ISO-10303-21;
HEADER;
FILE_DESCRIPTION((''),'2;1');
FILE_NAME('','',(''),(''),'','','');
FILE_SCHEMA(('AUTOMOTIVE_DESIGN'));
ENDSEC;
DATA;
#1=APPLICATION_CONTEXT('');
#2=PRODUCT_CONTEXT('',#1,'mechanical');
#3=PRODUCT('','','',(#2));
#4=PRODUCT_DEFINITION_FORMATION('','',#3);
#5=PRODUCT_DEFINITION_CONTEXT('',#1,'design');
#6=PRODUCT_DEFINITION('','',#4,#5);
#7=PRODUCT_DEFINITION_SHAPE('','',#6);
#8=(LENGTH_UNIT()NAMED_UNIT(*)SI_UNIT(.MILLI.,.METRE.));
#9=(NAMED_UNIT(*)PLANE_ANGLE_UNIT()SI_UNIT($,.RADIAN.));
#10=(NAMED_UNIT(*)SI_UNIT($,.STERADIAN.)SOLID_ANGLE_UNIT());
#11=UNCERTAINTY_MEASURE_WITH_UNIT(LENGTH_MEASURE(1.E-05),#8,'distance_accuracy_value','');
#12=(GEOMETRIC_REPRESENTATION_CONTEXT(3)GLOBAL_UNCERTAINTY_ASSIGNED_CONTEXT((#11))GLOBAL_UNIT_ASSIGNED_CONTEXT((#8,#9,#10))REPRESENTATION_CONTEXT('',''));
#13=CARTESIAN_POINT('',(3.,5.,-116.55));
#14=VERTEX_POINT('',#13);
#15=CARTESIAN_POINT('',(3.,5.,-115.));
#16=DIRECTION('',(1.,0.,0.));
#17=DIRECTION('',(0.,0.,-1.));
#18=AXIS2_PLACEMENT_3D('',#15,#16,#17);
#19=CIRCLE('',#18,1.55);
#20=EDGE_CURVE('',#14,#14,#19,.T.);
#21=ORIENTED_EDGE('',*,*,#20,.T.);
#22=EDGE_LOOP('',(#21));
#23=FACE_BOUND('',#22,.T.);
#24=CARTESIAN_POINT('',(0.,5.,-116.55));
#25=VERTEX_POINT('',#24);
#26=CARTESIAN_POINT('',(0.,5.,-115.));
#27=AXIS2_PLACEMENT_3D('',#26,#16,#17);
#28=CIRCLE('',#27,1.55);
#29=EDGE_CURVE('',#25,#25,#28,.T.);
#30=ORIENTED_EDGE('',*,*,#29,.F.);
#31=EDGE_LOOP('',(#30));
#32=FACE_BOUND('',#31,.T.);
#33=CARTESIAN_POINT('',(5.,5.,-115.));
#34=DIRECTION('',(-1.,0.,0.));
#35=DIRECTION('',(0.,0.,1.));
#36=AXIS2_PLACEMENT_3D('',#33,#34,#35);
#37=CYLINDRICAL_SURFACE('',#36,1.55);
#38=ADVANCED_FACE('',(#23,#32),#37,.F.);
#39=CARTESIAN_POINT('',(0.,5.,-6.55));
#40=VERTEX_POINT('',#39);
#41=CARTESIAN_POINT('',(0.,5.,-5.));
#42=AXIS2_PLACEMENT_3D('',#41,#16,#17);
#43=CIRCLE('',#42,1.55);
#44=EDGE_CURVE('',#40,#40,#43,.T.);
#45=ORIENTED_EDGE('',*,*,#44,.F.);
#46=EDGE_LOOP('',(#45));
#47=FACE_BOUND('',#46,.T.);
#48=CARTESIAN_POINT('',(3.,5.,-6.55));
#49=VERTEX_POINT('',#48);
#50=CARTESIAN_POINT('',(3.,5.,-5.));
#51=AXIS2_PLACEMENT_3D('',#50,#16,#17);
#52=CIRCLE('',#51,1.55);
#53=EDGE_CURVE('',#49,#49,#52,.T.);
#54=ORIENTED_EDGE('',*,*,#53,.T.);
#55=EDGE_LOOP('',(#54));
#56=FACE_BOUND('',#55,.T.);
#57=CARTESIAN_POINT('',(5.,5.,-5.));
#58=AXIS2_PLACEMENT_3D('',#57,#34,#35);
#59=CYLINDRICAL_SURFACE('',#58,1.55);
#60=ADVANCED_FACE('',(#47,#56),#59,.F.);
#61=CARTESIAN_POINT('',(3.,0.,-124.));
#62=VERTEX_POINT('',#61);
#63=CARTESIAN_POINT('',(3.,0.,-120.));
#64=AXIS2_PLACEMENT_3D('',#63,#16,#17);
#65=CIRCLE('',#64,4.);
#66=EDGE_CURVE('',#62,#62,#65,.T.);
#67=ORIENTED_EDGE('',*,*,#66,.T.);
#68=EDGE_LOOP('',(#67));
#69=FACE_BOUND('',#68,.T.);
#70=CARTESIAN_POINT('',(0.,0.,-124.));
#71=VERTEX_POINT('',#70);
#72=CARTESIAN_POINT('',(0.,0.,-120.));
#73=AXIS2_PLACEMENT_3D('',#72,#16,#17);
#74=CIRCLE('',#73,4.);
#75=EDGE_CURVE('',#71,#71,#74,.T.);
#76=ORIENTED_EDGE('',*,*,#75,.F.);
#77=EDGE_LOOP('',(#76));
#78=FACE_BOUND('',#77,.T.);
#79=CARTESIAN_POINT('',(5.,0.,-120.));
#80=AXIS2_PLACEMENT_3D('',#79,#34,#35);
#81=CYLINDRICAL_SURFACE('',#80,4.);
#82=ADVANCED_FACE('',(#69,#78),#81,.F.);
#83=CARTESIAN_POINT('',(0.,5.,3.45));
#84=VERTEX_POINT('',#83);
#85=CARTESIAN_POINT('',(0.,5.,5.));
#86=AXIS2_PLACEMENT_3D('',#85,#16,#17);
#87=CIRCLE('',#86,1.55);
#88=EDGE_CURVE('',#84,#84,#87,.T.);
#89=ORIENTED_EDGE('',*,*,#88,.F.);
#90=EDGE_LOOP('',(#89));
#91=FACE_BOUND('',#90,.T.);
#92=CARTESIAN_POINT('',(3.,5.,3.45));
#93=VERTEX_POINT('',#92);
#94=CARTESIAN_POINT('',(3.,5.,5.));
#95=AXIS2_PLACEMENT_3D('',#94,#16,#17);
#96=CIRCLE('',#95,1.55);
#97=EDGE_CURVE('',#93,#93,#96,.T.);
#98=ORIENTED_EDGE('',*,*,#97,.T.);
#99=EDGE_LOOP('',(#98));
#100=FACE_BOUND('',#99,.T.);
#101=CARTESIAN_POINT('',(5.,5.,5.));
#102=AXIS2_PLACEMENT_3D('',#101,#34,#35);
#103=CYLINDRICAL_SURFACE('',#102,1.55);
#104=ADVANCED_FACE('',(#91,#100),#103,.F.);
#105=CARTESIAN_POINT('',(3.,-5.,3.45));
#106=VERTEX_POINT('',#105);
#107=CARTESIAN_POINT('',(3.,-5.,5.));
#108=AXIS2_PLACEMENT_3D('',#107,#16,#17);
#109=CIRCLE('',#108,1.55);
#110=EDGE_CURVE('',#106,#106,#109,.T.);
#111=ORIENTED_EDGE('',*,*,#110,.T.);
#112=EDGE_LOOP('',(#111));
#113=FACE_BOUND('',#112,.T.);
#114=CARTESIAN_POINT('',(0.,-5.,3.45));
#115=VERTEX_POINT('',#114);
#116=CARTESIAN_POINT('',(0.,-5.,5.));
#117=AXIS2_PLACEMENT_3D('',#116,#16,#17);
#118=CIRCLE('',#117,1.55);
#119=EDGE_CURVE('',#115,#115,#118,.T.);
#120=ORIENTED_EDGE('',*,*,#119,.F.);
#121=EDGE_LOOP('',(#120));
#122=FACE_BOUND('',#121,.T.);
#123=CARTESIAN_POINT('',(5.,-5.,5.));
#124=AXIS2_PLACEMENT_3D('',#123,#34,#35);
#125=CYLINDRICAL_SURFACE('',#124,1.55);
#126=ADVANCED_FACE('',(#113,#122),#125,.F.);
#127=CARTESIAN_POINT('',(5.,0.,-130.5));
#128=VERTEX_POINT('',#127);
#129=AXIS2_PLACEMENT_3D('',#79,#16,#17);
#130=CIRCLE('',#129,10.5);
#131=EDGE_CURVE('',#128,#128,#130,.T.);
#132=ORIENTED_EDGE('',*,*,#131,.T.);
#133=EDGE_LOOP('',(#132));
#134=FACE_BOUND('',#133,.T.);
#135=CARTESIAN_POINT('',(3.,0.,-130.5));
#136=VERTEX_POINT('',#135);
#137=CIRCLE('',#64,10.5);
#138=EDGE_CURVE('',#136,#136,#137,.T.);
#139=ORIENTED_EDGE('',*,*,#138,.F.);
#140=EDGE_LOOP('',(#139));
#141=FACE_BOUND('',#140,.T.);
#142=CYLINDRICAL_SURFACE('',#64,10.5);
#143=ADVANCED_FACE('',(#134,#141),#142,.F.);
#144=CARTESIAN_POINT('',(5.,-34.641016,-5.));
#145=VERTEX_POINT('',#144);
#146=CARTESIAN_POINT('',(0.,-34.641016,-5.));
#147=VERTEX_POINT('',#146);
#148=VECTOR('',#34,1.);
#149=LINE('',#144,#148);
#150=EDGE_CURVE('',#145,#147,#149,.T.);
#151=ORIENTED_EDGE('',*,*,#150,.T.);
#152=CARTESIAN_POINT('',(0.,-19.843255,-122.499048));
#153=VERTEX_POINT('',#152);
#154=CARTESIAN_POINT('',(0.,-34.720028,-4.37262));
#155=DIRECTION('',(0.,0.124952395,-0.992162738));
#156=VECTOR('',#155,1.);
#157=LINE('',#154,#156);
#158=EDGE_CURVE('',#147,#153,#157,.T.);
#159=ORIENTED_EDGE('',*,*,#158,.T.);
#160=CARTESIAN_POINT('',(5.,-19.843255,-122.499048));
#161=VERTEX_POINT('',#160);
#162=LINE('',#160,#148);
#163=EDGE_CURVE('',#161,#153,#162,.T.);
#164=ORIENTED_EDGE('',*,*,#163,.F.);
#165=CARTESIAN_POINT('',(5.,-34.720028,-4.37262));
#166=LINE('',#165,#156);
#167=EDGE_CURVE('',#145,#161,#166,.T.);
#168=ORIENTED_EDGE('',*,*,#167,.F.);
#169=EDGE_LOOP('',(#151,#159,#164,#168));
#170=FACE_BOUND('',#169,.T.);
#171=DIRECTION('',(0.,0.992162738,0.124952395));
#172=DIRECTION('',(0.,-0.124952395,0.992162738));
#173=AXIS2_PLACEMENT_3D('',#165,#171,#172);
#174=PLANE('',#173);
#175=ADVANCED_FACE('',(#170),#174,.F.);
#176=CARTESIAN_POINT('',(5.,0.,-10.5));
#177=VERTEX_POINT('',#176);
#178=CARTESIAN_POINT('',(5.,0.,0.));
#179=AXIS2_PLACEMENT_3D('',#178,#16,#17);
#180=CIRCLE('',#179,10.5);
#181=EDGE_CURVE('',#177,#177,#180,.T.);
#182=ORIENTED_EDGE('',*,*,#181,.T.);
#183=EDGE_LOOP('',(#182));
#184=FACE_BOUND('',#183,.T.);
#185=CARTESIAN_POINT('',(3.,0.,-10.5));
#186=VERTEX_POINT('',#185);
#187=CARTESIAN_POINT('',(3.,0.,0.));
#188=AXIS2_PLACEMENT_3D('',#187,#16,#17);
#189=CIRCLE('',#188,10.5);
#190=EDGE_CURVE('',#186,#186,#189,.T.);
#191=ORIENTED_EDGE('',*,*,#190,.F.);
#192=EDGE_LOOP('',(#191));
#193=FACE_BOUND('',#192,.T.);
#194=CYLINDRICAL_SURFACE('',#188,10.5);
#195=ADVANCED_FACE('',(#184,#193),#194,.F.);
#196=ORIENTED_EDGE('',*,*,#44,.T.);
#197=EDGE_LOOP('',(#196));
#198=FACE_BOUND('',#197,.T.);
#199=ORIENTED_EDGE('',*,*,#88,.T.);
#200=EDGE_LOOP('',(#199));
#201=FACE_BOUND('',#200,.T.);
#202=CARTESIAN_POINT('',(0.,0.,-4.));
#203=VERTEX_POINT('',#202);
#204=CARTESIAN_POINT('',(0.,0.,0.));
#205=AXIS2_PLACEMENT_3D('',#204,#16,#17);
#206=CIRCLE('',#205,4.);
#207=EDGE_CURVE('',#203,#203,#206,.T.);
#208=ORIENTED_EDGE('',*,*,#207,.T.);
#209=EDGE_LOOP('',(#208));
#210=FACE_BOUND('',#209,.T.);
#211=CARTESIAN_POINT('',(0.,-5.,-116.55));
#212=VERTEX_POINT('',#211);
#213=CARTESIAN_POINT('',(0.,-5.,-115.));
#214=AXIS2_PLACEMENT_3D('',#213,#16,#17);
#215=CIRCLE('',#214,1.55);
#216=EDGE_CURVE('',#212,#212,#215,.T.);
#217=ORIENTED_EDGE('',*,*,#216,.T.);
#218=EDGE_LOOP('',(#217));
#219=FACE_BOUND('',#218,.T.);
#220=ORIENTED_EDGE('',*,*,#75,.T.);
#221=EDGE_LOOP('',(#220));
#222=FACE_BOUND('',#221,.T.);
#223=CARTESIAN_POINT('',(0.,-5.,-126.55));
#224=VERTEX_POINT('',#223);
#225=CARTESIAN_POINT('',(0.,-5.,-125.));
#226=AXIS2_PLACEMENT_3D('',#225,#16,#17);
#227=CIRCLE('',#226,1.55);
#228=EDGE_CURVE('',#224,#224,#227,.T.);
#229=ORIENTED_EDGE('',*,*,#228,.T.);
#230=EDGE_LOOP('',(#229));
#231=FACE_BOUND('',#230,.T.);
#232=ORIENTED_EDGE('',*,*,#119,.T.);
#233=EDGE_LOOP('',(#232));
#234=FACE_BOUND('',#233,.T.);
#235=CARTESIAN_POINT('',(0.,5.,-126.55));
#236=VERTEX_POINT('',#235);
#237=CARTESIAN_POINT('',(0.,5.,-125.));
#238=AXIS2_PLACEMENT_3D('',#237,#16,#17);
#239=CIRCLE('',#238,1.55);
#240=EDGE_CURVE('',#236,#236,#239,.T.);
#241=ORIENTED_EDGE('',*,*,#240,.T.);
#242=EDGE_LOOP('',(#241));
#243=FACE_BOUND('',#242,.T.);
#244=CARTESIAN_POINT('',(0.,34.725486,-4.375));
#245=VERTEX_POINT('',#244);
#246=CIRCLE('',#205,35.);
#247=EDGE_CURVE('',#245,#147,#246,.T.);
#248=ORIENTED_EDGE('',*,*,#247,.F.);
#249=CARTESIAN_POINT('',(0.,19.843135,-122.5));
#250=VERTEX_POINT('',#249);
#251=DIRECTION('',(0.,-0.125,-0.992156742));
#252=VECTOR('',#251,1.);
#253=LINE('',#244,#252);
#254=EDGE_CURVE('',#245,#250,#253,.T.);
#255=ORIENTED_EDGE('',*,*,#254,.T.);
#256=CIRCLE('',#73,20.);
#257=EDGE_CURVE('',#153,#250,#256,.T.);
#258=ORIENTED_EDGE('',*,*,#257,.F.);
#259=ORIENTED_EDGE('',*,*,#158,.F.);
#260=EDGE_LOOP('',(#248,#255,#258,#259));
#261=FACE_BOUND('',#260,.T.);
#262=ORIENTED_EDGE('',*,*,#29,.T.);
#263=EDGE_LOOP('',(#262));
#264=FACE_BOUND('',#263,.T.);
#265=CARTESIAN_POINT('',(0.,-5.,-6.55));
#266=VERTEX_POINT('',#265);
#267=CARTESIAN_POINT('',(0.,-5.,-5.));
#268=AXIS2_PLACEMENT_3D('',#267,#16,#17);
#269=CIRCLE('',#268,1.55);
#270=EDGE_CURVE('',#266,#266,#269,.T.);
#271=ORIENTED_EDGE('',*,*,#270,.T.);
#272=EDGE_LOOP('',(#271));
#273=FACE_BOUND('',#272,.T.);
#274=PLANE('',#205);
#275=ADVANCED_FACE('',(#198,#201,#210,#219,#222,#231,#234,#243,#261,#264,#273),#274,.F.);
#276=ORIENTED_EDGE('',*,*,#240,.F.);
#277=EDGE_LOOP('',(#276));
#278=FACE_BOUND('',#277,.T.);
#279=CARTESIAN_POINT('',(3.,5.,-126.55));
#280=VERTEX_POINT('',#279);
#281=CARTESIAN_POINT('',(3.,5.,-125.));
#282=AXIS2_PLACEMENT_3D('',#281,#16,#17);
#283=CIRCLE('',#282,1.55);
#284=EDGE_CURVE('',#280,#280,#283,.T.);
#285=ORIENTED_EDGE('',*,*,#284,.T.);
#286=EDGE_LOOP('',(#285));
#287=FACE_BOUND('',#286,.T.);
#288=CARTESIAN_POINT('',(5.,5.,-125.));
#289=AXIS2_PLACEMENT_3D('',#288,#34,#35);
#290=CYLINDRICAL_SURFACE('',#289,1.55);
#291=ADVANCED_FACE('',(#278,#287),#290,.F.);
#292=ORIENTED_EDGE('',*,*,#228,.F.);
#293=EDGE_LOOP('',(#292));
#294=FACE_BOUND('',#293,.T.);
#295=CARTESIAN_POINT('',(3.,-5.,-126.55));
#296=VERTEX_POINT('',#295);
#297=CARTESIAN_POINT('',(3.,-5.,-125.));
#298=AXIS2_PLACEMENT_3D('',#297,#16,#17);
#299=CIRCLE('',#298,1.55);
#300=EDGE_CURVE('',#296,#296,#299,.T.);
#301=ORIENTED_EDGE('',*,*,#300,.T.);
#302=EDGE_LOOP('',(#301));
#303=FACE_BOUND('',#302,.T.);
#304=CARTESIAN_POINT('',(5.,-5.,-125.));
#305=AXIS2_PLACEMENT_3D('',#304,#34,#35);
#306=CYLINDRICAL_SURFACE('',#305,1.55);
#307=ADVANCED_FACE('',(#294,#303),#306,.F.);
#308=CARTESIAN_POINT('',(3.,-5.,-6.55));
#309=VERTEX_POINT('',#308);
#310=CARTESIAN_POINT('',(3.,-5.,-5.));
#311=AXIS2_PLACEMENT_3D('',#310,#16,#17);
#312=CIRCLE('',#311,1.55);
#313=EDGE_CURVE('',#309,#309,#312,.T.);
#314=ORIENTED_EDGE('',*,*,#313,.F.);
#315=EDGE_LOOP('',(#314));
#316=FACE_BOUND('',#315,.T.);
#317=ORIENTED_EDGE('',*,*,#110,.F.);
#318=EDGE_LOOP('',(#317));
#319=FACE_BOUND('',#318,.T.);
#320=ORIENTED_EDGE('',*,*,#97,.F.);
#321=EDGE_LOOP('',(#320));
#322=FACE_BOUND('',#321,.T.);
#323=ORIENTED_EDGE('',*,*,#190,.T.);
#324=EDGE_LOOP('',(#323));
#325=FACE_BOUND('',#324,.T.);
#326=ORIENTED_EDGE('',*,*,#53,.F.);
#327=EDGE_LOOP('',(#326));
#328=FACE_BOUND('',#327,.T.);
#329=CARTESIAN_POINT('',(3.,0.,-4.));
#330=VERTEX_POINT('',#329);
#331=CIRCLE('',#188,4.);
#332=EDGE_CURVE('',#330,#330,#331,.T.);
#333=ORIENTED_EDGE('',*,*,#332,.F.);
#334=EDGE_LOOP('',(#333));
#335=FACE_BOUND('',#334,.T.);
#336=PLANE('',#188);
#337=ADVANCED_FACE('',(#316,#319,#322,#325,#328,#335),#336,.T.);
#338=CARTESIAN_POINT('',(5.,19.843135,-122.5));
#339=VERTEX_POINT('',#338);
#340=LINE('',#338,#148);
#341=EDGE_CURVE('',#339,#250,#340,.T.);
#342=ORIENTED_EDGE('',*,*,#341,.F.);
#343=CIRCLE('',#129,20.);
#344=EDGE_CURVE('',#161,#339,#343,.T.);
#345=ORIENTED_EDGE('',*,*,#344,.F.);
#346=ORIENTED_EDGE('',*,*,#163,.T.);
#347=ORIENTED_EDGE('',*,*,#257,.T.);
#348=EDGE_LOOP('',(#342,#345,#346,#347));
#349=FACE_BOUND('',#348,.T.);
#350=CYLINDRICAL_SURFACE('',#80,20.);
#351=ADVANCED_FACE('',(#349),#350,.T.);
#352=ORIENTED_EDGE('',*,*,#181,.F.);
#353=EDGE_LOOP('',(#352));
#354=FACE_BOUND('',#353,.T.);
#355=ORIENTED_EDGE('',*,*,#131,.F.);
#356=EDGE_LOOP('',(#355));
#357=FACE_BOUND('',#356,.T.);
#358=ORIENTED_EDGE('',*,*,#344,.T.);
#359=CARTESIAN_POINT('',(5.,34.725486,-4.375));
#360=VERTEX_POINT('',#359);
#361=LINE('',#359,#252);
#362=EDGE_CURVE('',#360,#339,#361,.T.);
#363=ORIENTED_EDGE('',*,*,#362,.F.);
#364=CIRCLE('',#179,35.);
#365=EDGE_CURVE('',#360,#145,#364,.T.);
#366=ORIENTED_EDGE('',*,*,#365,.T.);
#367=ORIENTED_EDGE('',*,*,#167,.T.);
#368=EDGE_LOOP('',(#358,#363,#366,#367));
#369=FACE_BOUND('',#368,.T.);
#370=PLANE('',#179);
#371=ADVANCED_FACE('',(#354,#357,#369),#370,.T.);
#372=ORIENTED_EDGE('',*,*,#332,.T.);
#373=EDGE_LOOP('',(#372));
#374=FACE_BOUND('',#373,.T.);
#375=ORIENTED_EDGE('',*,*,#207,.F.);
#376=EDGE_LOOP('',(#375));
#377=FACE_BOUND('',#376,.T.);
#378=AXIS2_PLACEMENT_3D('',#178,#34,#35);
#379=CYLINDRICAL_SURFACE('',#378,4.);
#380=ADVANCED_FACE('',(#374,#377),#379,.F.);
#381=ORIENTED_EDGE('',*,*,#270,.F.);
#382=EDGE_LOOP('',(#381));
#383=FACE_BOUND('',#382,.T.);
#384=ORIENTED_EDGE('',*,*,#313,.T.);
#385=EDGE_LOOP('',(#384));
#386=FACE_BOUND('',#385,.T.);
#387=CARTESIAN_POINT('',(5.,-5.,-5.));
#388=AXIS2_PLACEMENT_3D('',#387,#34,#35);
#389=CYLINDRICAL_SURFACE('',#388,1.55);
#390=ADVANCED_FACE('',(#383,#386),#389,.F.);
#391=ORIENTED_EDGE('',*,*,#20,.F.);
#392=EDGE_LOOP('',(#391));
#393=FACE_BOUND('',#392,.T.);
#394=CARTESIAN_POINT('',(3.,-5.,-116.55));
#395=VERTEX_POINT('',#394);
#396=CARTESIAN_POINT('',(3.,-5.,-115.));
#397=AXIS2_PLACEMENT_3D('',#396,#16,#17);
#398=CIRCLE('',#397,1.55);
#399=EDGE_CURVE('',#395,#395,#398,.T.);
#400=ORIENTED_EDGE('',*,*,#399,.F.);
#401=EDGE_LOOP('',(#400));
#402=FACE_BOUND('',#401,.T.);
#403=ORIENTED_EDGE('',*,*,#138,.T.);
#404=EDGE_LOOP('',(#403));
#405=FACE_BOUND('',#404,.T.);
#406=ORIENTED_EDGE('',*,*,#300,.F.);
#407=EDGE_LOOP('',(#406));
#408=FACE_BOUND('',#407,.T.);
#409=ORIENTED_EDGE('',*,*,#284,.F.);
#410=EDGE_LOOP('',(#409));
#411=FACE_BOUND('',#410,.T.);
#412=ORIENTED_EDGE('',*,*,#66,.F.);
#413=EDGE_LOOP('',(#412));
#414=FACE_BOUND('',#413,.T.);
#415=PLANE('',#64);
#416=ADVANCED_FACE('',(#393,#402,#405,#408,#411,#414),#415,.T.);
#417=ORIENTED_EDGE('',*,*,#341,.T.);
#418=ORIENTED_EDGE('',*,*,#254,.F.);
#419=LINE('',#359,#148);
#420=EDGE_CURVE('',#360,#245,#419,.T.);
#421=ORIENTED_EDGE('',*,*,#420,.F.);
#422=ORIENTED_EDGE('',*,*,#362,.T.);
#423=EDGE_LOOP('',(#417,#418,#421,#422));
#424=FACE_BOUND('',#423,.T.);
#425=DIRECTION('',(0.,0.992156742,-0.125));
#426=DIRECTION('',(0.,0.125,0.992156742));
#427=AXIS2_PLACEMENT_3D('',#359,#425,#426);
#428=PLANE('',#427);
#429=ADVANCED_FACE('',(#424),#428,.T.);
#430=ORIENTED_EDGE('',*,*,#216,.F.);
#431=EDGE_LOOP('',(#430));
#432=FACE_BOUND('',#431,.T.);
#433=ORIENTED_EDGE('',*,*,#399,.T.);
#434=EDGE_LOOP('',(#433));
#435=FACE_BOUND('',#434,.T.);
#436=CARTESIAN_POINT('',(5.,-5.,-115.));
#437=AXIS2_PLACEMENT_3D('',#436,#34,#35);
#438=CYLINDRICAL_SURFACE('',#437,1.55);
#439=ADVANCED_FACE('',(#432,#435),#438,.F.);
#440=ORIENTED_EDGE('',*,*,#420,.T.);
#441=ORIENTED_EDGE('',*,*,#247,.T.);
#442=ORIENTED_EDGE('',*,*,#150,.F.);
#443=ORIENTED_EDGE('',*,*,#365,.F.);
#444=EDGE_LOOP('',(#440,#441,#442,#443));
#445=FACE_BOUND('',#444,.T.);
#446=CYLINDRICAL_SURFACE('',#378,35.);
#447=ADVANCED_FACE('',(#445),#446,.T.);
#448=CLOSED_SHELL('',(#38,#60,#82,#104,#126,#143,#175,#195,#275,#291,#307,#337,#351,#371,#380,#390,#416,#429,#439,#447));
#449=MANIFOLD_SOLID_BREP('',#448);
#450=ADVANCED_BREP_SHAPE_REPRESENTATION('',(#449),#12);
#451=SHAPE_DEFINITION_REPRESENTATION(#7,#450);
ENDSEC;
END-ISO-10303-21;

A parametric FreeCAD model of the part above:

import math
import FreeCAD as App
import Part
import Sketcher

doc = App.newDocument("Part")
body = doc.addObject("PartDesign::Body", "Body")

# Sketch on YZ plane
sketch1 = body.newObject("Sketcher::SketchObject", "Sketch")
sketch1.AttachmentSupport = (doc.getObject("YZ_Plane"), [""])
sketch1.MapMode = "FlatFace"
sketch1.addGeometry(Part.LineSegment(App.Vector(19.8, -122.5, 0), App.Vector(34.7, -4.4, 0)), False)
sketch1.addGeometry(Part.ArcOfCircle(Part.Circle(App.Vector(0, 0, 0), App.Vector(0, 0, 1), 35), math.radians(-7), math.radians(188)), False)
sketch1.addGeometry(Part.LineSegment(App.Vector(-34.6, -5, 0), App.Vector(-19.8, -122.5, 0)), False)
sketch1.addGeometry(Part.ArcOfCircle(Part.Circle(App.Vector(0, -120, 0), App.Vector(0, 0, 1), 20), math.radians(-173), math.radians(-7)), False)
sketch1.addGeometry(Part.Circle(App.Vector(-5, 5, 0), App.Vector(0, 0, 1), 1.6), False)
sketch1.addGeometry(Part.Circle(App.Vector(-5, -5, 0), App.Vector(0, 0, 1), 1.6), False)
sketch1.addGeometry(Part.Circle(App.Vector(-5, -115, 0), App.Vector(0, 0, 1), 1.6), False)
sketch1.addGeometry(Part.Circle(App.Vector(-5, -125, 0), App.Vector(0, 0, 1), 1.6), False)
sketch1.addGeometry(Part.Circle(App.Vector(0, 0, 0), App.Vector(0, 0, 1), 4), False)
sketch1.addGeometry(Part.Circle(App.Vector(5, 5, 0), App.Vector(0, 0, 1), 1.6), False)
sketch1.addGeometry(Part.Circle(App.Vector(5, -5, 0), App.Vector(0, 0, 1), 1.6), False)
sketch1.addGeometry(Part.Circle(App.Vector(0, -120, 0), App.Vector(0, 0, 1), 4), False)
sketch1.addGeometry(Part.Circle(App.Vector(5, -115, 0), App.Vector(0, 0, 1), 1.6), False)
sketch1.addGeometry(Part.Circle(App.Vector(5, -125, 0), App.Vector(0, 0, 1), 1.6), False)
sketch1.addConstraint(Sketcher.Constraint("Tangent", 0, 2, 1, 1))
sketch1.addConstraint(Sketcher.Constraint("Coincident", 1, 2, 2, 1))
sketch1.addConstraint(Sketcher.Constraint("Tangent", 2, 2, 3, 1))
sketch1.addConstraint(Sketcher.Constraint("Tangent", 3, 2, 0, 1))
sketch1.addConstraint(Sketcher.Constraint("Coincident", 1, 3, -1, 1))
sketch1.addConstraint(Sketcher.Constraint("Coincident", 8, 3, -1, 1))
sketch1.addConstraint(Sketcher.Constraint("Coincident", 11, 3, 3, 3))
sketch1.addConstraint(Sketcher.Constraint("Equal", 4, 5))
sketch1.addConstraint(Sketcher.Constraint("Equal", 5, 6))
sketch1.addConstraint(Sketcher.Constraint("Equal", 6, 7))
sketch1.addConstraint(Sketcher.Constraint("Equal", 7, 9))
sketch1.addConstraint(Sketcher.Constraint("Equal", 9, 10))
sketch1.addConstraint(Sketcher.Constraint("Equal", 8, 11))
sketch1.addConstraint(Sketcher.Constraint("Equal", 10, 12))
sketch1.addConstraint(Sketcher.Constraint("Equal", 12, 13))
sketch1.addConstraint(Sketcher.Constraint("Symmetric", 5, 3, 9, 3, -1, 1))
sketch1.addConstraint(Sketcher.Constraint("Symmetric", 4, 3, 10, 3, -1, 1))
sketch1.addConstraint(Sketcher.Constraint("Symmetric", 4, 3, 9, 3, -2))
sketch1.addConstraint(Sketcher.Constraint("Symmetric", 6, 3, 12, 3, -2))
sketch1.addConstraint(Sketcher.Constraint("Symmetric", 7, 3, 13, 3, -2))
sketch1.addConstraint(Sketcher.Constraint("PointOnObject", 3, 3, -2))
sketch1.addConstraint(Sketcher.Constraint("Horizontal", 10, 3, 1, 2))
sketch1.addConstraint(Sketcher.Constraint("Vertical", 5, 3, 6, 3))
sketch1.addConstraint(Sketcher.Constraint("Vertical", 6, 3, 7, 3))
sketch1.addConstraint(Sketcher.Constraint("Diameter", 8, 8.0))
sketch1.addConstraint(Sketcher.Constraint("Radius", 1, 35.0))
sketch1.addConstraint(Sketcher.Constraint("Radius", 3, 20.0))
sketch1.addConstraint(Sketcher.Constraint("Diameter", 4, 3.1))
sketch1.addConstraint(Sketcher.Constraint("DistanceY", 3, 3, -1, 1, 120.0))
sketch1.addConstraint(Sketcher.Constraint("DistanceX", 4, 3, -1, 1, 5.0))
sketch1.addConstraint(Sketcher.Constraint("DistanceY", -1, 1, 4, 3, 5.0))
sketch1.addConstraint(Sketcher.Constraint("DistanceY", 6, 3, -1, 1, 115.0))
sketch1.addConstraint(Sketcher.Constraint("DistanceY", 7, 3, -1, 1, 125.0))
pad1 = body.newObject("PartDesign::Pad", "Pad")
pad1.Profile = sketch1
pad1.Length = 5

# Sketch on YZ plane
sketch2 = body.newObject("Sketcher::SketchObject", "Sketch001")
sketch2.AttachmentSupport = (doc.getObject("YZ_Plane"), [""])
sketch2.MapMode = "FlatFace"
sketch2.AttachmentOffset = App.Placement(App.Vector(0, 0, 5), App.Rotation())
sketch2.addGeometry(Part.Circle(App.Vector(0, 0, 0), App.Vector(0, 0, 1), 10), False)
sketch2.addGeometry(Part.Circle(App.Vector(0, -120, 0), App.Vector(0, 0, 1), 10), False)
sketch2.addConstraint(Sketcher.Constraint("Coincident", 0, 3, -1, 1))
sketch2.addConstraint(Sketcher.Constraint("Equal", 0, 1))
sketch2.addConstraint(Sketcher.Constraint("PointOnObject", 1, 3, -2))
sketch2.addConstraint(Sketcher.Constraint("Diameter", 0, 21.0))
sketch2.addConstraint(Sketcher.Constraint("DistanceY", 1, 3, -1, 1, 120.0))
pocket1 = body.newObject("PartDesign::Pocket", "Pocket")
pocket1.Profile = sketch2
pocket1.Length = 2

doc.recompute()
